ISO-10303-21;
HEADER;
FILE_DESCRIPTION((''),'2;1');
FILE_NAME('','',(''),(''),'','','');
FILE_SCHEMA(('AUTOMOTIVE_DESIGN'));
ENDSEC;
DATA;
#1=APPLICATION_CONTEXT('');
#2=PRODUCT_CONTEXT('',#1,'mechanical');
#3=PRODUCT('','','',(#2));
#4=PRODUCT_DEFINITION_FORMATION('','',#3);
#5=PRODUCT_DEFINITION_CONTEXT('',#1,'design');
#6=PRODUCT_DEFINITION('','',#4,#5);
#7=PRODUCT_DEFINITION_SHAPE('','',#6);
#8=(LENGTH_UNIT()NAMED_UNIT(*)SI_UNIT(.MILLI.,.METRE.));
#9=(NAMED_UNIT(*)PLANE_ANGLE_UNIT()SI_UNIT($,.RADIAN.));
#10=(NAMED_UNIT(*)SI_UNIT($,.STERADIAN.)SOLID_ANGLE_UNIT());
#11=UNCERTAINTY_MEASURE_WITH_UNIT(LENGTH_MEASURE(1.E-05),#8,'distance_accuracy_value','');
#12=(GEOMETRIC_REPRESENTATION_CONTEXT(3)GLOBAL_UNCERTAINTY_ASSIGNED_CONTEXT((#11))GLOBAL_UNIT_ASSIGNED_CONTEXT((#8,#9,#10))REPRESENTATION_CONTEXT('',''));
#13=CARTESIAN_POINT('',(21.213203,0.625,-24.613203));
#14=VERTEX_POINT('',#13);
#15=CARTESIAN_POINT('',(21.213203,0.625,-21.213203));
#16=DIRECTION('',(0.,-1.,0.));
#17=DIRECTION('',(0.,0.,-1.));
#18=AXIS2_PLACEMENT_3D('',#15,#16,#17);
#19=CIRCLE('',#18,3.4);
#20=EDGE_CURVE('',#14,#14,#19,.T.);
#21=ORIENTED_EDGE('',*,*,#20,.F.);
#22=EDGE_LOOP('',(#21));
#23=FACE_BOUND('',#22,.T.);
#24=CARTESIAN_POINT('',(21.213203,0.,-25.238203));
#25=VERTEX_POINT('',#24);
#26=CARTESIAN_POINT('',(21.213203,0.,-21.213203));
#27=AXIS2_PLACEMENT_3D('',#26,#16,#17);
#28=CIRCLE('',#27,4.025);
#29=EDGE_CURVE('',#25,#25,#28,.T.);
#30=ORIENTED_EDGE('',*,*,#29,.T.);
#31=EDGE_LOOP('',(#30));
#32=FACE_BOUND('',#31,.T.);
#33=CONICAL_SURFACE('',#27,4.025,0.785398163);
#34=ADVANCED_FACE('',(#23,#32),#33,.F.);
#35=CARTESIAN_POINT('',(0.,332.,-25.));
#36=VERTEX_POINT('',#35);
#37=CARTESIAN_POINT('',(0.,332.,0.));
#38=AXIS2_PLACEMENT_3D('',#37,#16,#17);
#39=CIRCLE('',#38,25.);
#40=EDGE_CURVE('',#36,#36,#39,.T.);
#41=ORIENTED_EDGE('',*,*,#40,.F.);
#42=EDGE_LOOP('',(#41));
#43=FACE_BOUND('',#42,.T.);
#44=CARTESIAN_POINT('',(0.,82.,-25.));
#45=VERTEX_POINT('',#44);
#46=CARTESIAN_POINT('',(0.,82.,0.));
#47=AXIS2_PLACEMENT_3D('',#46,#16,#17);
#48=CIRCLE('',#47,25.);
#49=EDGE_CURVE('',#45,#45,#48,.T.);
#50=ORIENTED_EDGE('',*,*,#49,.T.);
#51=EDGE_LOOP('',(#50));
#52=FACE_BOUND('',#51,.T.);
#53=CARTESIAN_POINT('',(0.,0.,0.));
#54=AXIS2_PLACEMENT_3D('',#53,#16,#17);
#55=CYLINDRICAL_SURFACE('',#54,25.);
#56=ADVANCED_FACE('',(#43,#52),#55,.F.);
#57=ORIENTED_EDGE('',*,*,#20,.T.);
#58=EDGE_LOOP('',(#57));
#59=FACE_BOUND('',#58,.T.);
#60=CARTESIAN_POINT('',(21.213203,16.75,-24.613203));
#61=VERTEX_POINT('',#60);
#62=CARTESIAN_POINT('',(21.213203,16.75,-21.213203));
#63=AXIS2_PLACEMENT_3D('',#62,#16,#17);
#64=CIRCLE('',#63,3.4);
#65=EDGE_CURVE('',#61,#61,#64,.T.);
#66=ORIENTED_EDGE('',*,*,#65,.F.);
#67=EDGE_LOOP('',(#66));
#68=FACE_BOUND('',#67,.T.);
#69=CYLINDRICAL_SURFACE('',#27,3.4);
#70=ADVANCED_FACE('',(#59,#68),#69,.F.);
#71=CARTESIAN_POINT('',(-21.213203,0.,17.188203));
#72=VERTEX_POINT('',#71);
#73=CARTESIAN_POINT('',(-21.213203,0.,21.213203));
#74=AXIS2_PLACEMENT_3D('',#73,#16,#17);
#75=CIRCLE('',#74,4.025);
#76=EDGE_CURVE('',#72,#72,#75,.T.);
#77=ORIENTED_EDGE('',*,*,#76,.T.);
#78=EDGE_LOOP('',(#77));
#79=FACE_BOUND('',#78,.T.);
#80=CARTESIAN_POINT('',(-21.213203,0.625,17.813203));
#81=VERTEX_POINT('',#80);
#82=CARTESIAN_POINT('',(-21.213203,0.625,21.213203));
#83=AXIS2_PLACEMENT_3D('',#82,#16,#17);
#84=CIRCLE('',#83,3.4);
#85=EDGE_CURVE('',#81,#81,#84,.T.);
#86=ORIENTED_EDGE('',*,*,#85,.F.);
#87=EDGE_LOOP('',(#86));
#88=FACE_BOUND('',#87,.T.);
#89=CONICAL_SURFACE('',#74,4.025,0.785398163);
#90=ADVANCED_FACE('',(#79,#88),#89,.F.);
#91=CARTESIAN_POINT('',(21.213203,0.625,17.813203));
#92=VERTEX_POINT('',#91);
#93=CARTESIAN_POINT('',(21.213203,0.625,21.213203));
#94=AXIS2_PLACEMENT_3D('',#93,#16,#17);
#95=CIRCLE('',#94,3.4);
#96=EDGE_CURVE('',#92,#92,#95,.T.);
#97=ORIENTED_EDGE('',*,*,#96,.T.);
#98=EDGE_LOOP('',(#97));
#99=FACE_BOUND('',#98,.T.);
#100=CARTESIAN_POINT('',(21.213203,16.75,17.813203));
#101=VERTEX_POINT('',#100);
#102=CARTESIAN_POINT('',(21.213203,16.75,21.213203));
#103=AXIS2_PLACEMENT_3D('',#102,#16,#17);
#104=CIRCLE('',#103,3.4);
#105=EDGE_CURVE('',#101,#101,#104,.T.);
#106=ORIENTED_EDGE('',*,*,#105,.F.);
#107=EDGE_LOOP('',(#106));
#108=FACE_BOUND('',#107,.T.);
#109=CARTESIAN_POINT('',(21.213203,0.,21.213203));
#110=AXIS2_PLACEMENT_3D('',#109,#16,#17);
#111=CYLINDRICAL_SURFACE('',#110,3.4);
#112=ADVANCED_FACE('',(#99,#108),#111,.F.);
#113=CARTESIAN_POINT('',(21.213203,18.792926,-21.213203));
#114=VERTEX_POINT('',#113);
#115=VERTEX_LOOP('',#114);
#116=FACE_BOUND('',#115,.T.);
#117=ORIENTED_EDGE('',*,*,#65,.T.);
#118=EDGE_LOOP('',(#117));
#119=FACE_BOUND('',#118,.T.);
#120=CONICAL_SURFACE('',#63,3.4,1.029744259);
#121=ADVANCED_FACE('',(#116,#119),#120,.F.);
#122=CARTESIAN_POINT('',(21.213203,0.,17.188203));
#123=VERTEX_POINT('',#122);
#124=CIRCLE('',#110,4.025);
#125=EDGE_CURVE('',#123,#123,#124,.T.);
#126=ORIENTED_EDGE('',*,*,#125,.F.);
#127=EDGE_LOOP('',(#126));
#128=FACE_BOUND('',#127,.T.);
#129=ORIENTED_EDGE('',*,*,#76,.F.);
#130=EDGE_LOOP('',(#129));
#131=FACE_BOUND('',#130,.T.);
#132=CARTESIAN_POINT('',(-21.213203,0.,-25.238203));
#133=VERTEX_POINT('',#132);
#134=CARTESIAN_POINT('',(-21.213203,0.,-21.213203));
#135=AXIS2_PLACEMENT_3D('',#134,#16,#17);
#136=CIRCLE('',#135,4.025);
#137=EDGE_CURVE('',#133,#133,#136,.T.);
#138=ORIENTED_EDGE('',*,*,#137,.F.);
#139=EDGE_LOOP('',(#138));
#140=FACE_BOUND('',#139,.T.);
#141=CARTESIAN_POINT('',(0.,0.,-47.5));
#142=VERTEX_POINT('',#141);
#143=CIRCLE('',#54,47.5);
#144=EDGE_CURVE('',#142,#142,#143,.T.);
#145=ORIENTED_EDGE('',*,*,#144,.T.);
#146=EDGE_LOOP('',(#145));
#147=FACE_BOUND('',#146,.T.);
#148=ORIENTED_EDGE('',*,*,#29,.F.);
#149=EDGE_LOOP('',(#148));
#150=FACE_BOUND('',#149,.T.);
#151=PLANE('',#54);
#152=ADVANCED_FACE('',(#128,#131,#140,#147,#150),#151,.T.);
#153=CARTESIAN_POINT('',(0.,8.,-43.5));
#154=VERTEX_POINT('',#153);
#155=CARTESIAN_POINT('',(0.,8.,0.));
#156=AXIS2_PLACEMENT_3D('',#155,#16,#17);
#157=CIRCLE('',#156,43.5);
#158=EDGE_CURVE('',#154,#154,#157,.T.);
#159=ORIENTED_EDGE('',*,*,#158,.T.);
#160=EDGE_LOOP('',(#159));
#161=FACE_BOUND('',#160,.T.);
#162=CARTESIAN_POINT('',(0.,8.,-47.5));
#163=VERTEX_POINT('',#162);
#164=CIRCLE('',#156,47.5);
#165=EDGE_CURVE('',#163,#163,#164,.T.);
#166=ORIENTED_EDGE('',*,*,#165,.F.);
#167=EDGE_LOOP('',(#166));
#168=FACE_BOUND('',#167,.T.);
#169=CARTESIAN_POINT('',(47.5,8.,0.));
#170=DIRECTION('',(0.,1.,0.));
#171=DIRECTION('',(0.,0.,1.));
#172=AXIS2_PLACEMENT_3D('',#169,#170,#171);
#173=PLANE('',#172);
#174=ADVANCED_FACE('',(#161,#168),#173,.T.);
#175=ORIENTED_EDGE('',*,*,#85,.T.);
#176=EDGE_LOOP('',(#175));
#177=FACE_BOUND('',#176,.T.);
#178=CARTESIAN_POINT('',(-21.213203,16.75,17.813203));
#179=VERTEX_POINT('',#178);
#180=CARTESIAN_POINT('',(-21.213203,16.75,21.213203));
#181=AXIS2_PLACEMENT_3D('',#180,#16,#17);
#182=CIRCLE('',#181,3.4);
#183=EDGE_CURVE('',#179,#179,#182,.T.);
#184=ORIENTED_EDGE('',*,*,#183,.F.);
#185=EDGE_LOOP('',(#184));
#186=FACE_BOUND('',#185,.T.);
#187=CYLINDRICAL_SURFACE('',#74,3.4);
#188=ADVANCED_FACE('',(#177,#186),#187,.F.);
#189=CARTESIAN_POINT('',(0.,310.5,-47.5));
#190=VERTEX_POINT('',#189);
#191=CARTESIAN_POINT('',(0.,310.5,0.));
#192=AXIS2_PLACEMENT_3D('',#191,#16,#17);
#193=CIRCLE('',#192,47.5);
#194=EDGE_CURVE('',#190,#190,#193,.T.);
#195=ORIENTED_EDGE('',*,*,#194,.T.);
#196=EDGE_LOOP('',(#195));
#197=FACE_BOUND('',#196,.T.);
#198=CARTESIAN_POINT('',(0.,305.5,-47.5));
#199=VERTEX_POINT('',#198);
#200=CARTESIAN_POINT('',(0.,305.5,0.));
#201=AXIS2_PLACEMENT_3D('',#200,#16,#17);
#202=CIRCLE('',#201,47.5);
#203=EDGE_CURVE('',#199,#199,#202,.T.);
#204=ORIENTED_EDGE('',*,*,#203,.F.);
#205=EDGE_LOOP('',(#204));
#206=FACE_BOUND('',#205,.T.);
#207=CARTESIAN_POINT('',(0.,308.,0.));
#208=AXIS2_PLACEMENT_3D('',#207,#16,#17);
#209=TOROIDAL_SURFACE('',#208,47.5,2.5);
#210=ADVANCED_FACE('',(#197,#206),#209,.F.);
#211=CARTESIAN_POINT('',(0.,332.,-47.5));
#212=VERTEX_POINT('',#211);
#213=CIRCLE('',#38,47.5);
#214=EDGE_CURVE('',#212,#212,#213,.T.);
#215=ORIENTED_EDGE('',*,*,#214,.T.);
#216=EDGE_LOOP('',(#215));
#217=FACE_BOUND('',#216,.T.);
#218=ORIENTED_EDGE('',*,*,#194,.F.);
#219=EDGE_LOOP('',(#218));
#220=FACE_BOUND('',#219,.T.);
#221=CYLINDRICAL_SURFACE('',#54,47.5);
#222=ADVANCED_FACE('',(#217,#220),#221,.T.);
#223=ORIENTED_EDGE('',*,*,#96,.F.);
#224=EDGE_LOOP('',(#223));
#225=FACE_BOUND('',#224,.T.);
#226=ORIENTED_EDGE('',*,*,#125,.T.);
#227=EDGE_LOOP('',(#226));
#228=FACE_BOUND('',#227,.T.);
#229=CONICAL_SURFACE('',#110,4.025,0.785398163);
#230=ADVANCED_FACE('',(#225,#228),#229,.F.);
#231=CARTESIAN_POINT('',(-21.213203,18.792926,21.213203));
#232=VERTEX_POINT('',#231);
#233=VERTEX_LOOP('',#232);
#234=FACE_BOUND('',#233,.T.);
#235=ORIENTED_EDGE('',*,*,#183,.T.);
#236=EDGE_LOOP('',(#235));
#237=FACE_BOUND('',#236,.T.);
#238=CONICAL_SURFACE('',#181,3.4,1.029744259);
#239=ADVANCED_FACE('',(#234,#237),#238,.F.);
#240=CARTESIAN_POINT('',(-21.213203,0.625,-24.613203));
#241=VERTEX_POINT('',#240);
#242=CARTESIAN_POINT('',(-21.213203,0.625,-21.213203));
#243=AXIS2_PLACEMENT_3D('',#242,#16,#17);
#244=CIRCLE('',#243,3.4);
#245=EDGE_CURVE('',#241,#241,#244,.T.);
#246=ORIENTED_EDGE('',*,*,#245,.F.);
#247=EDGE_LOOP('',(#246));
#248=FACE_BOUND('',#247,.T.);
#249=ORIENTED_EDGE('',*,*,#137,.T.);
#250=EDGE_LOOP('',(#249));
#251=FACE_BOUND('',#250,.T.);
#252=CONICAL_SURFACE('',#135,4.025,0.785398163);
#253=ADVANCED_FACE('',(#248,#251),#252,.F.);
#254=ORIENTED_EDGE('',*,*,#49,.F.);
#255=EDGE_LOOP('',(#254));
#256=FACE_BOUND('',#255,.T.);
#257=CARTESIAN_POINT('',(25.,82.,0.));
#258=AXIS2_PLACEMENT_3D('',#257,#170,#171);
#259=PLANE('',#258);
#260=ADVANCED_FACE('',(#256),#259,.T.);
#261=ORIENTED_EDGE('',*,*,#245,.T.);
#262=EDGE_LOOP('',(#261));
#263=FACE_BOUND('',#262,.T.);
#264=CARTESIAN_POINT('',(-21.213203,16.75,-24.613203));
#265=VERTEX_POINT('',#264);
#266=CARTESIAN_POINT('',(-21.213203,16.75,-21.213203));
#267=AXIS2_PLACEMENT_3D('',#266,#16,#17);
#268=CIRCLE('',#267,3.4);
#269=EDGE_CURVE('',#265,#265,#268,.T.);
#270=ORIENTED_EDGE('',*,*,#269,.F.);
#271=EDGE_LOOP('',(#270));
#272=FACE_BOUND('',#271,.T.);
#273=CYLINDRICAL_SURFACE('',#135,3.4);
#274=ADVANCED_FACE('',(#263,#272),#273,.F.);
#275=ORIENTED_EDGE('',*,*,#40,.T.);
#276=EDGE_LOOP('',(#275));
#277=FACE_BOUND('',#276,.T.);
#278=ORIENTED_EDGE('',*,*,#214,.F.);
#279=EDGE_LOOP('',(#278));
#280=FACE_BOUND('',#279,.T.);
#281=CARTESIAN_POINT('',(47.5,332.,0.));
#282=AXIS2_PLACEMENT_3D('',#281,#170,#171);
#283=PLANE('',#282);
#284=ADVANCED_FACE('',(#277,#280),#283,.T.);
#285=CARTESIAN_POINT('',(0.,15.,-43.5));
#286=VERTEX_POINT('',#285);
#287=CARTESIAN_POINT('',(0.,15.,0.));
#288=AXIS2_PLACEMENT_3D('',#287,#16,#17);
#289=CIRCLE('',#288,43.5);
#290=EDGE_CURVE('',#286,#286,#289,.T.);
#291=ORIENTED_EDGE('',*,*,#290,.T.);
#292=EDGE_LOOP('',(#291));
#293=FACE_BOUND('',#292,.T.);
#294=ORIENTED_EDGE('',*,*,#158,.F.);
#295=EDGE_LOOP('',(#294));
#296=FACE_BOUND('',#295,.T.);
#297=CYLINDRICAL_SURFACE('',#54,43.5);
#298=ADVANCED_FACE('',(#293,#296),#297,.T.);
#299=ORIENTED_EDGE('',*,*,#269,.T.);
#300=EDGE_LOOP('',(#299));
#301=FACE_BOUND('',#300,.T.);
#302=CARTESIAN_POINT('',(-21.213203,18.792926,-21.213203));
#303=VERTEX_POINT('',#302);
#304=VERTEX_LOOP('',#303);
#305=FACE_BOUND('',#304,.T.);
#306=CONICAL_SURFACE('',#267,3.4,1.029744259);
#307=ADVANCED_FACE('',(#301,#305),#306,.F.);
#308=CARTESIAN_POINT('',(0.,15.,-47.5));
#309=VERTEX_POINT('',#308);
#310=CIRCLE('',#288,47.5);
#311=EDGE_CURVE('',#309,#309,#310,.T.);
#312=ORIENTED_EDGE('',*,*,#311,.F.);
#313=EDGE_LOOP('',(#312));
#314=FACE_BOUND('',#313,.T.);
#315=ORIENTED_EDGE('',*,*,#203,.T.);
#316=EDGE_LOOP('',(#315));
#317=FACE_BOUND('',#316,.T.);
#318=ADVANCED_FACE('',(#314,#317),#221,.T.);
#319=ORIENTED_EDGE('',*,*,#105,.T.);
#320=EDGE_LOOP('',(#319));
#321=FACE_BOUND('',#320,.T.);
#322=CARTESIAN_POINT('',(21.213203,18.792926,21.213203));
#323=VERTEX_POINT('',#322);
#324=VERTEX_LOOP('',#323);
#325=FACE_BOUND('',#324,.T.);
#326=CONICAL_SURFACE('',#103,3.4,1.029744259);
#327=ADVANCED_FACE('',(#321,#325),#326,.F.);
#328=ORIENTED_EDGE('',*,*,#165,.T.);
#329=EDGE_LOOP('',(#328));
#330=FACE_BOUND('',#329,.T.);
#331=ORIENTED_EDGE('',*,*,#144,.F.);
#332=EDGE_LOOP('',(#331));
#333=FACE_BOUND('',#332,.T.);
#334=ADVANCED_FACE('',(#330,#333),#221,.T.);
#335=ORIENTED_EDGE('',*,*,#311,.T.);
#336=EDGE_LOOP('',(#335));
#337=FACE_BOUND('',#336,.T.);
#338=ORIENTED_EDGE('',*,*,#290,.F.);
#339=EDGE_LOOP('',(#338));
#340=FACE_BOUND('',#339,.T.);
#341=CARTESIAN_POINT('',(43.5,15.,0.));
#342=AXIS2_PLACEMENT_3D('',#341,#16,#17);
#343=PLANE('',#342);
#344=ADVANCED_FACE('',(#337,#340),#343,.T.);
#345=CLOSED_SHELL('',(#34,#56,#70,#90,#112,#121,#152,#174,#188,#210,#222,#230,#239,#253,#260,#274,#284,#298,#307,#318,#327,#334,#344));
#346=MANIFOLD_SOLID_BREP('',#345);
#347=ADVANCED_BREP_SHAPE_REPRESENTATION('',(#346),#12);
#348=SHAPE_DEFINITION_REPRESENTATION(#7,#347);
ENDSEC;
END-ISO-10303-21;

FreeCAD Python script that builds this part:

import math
import FreeCAD as App
import Part
import Sketcher
Q = App.Units.Quantity

doc = App.newDocument("Part")
body = doc.addObject("PartDesign::Body", "Body")

# Sketch on XY plane
sketch1 = body.newObject("Sketcher::SketchObject", "Sketch")
sketch1.AttachmentSupport = (doc.getObject("XY_Plane"), [""])
sketch1.MapMode = "FlatFace"
sketch1.addGeometry([
    Part.LineSegment(App.Vector(0, 0, 0), App.Vector(47.5, 0, 0)),  # 0
    Part.LineSegment(App.Vector(47.5, 0, 0), App.Vector(47.5, 8, 0)),  # 1
    Part.LineSegment(App.Vector(47.5, 8, 0), App.Vector(43.5, 8, 0)),  # 2
    Part.LineSegment(App.Vector(43.5, 8, 0), App.Vector(43.5, 15, 0)),  # 3
    Part.LineSegment(App.Vector(43.5, 15, 0), App.Vector(47.5, 15, 0)),  # 4
    Part.LineSegment(App.Vector(47.5, 15, 0), App.Vector(47.5, 305.5, 0)),  # 5
    Part.ArcOfCircle(Part.Circle(App.Vector(47.5, 308, 0), App.Vector(0, 0, 1), 2.5), math.radians(90), math.radians(270)),  # 6
    Part.LineSegment(App.Vector(47.5, 310.5, 0), App.Vector(47.5, 332, 0)),  # 7
    Part.LineSegment(App.Vector(47.5, 332, 0), App.Vector(25, 332, 0)),  # 8
    Part.LineSegment(App.Vector(25, 332, 0), App.Vector(25, 82, 0)),  # 9
    Part.LineSegment(App.Vector(25, 82, 0), App.Vector(0, 82, 0)),  # 10
    Part.LineSegment(App.Vector(0, 82, 0), App.Vector(0, 0, 0)),  # 11
], False)
sketch1.addConstraint([
    Sketcher.Constraint("Coincident", 0, 2, 1, 1),
    Sketcher.Constraint("Coincident", 1, 2, 2, 1),
    Sketcher.Constraint("Coincident", 2, 2, 3, 1),
    Sketcher.Constraint("Coincident", 3, 2, 4, 1),
    Sketcher.Constraint("Coincident", 4, 2, 5, 1),
    Sketcher.Constraint("Coincident", 5, 2, 6, 2),
    Sketcher.Constraint("Coincident", 6, 1, 7, 1),
    Sketcher.Constraint("Coincident", 7, 2, 8, 1),
    Sketcher.Constraint("Coincident", 8, 2, 9, 1),
    Sketcher.Constraint("Coincident", 9, 2, 10, 1),
    Sketcher.Constraint("Coincident", 10, 2, 11, 1),
    Sketcher.Constraint("Coincident", 11, 2, 0, 1),
    Sketcher.Constraint("Horizontal", 0),
    Sketcher.Constraint("Vertical", 1),
    Sketcher.Constraint("Horizontal", 2),
    Sketcher.Constraint("Vertical", 3),
    Sketcher.Constraint("Horizontal", 4),
    Sketcher.Constraint("Vertical", 5),
    Sketcher.Constraint("Vertical", 7),
    Sketcher.Constraint("Horizontal", 8),
    Sketcher.Constraint("Vertical", 9),
    Sketcher.Constraint("Horizontal", 10),
    Sketcher.Constraint("Vertical", 11),
    Sketcher.Constraint("Coincident", 11, 2, -1, 1),
    Sketcher.Constraint("Vertical", 6, 3, 0, 2),
    Sketcher.Constraint("Vertical", 1, 2, 4, 2),
    Sketcher.Constraint("Vertical", 5, 2, 6, 1),
    Sketcher.Constraint("Radius", 6, Q("2.5 mm")),
    Sketcher.Constraint("DistanceX", 2, 2, 2, 1, Q("4 mm")),
    Sketcher.Constraint("DistanceX", 10, 2, 10, 1, Q("25 mm")),
    Sketcher.Constraint("DistanceY", 1, 1, 1, 2, Q("8 mm")),
    Sketcher.Constraint("DistanceY", 3, 1, 3, 2, Q("7 mm")),
    Sketcher.Constraint("DistanceY", 9, 2, 9, 1, Q("250 mm")),
    Sketcher.Constraint("DistanceY", 11, 2, 11, 1, Q("82 mm")),
    Sketcher.Constraint("DistanceX", 0, 1, 0, 2, Q("47.5 mm")),
    Sketcher.Constraint("DistanceY", 5, 1, 5, 2, Q("290.5 mm")),
])
revolution = body.newObject("PartDesign::Revolution", "Revolution")
revolution.Profile = sketch1
revolution.ReferenceAxis = (sketch1, ["V_Axis"])
revolution.Angle = 360

# Sketch on XZ plane
sketch2 = body.newObject("Sketcher::SketchObject", "Sketch001")
sketch2.AttachmentSupport = (doc.getObject("XZ_Plane"), [""])
sketch2.MapMode = "FlatFace"
sketch2.addGeometry([
    Part.Circle(App.Vector(21.2, 21.2, 0), App.Vector(0, 0, 1), 3.4),
    Part.Circle(App.Vector(-21.2, 21.2, 0), App.Vector(0, 0, 1), 3.4),
    Part.Circle(App.Vector(-21.2, -21.2, 0), App.Vector(0, 0, 1), 3.4),
    Part.Circle(App.Vector(21.2, -21.2, 0), App.Vector(0, 0, 1), 3.4),
], False)
sketch2.addConstraint([
    Sketcher.Constraint("Equal", 0, 1),
    Sketcher.Constraint("Equal", 1, 2),
    Sketcher.Constraint("Equal", 2, 3),
    Sketcher.Constraint("Symmetric", 0, 3, 2, 3, -1, 1),
    Sketcher.Constraint("Symmetric", 1, 3, 3, 3, -1, 1),
    Sketcher.Constraint("Symmetric", 0, 3, 1, 3, -2),
    Sketcher.Constraint("Diameter", 0, Q("6.8 mm")),
    Sketcher.Constraint("DistanceX", -1, 1, 0, 3, Q("21.213203 mm")),
    Sketcher.Constraint("DistanceY", -1, 1, 0, 3, Q("21.213203 mm")),
])
doc.recompute()
hole = body.newObject("PartDesign::Hole", "Hole")
hole.Profile = sketch2
hole.ThreadType = "None"
hole.Diameter = 6.8
hole.DepthType = "Dimension"
hole.Depth = 16.75
hole.DrillPoint = "Angled"
hole.DrillPointAngle = 118
hole.HoleCutType = "Countersink"
hole.HoleCutDiameter = 8.05
hole.HoleCutCountersinkAngle = 90

doc.recompute()
